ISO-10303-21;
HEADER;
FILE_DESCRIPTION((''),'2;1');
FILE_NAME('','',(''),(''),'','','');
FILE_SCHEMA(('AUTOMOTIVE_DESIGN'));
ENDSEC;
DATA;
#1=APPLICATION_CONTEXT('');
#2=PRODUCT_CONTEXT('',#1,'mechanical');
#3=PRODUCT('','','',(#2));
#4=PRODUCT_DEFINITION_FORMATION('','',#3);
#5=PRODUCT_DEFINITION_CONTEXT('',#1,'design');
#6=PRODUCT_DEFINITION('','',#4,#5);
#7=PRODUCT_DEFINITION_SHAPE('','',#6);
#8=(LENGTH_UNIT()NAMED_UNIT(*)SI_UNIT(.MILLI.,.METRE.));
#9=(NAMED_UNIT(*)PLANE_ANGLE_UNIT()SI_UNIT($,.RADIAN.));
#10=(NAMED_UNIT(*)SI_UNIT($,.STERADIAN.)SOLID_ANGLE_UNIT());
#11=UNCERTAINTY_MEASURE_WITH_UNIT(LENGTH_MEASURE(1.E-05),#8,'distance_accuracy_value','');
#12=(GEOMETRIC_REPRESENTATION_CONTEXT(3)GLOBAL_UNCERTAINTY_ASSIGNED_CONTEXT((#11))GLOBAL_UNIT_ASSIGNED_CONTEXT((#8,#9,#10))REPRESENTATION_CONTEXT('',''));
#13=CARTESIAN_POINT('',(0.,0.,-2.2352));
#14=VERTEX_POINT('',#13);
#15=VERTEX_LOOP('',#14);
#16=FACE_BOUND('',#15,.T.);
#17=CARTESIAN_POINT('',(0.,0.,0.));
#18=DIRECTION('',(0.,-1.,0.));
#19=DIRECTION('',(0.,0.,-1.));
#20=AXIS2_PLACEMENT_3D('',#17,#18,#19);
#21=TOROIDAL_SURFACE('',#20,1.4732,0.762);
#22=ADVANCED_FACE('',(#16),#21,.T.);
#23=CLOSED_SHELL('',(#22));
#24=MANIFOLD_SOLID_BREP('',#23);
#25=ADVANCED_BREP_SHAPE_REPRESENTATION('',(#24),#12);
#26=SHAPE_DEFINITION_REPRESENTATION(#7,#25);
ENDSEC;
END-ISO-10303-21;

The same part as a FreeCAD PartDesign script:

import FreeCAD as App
import Part
import Sketcher

V = App.Vector
Q = App.Units.Quantity

doc = App.newDocument("Part")
body = doc.addObject("PartDesign::Body", "Body")

sketch1 = body.newObject("Sketcher::SketchObject", "Sketch")
sketch1.AttachmentSupport = (doc.getObject("XY_Plane"), [""])
sketch1.MapMode = "FlatFace"
sketch1.addGeometry(Part.Circle(V(-1.4732, 0, 0), V(0, 0, 1), 0.762), False)
sketch1.addConstraint([
    Sketcher.Constraint("PointOnObject", 0, 3, -1),
    Sketcher.Constraint("Diameter", 0, Q("0.06 in")),
    Sketcher.Constraint("DistanceX", 0, 3, -1, 1, Q("0.058 in")),
])
revolution = body.newObject("PartDesign::Revolution", "Revolution")
revolution.Profile = sketch1
revolution.ReferenceAxis = (sketch1, ["V_Axis"])
revolution.Angle = 360

doc.recompute()
